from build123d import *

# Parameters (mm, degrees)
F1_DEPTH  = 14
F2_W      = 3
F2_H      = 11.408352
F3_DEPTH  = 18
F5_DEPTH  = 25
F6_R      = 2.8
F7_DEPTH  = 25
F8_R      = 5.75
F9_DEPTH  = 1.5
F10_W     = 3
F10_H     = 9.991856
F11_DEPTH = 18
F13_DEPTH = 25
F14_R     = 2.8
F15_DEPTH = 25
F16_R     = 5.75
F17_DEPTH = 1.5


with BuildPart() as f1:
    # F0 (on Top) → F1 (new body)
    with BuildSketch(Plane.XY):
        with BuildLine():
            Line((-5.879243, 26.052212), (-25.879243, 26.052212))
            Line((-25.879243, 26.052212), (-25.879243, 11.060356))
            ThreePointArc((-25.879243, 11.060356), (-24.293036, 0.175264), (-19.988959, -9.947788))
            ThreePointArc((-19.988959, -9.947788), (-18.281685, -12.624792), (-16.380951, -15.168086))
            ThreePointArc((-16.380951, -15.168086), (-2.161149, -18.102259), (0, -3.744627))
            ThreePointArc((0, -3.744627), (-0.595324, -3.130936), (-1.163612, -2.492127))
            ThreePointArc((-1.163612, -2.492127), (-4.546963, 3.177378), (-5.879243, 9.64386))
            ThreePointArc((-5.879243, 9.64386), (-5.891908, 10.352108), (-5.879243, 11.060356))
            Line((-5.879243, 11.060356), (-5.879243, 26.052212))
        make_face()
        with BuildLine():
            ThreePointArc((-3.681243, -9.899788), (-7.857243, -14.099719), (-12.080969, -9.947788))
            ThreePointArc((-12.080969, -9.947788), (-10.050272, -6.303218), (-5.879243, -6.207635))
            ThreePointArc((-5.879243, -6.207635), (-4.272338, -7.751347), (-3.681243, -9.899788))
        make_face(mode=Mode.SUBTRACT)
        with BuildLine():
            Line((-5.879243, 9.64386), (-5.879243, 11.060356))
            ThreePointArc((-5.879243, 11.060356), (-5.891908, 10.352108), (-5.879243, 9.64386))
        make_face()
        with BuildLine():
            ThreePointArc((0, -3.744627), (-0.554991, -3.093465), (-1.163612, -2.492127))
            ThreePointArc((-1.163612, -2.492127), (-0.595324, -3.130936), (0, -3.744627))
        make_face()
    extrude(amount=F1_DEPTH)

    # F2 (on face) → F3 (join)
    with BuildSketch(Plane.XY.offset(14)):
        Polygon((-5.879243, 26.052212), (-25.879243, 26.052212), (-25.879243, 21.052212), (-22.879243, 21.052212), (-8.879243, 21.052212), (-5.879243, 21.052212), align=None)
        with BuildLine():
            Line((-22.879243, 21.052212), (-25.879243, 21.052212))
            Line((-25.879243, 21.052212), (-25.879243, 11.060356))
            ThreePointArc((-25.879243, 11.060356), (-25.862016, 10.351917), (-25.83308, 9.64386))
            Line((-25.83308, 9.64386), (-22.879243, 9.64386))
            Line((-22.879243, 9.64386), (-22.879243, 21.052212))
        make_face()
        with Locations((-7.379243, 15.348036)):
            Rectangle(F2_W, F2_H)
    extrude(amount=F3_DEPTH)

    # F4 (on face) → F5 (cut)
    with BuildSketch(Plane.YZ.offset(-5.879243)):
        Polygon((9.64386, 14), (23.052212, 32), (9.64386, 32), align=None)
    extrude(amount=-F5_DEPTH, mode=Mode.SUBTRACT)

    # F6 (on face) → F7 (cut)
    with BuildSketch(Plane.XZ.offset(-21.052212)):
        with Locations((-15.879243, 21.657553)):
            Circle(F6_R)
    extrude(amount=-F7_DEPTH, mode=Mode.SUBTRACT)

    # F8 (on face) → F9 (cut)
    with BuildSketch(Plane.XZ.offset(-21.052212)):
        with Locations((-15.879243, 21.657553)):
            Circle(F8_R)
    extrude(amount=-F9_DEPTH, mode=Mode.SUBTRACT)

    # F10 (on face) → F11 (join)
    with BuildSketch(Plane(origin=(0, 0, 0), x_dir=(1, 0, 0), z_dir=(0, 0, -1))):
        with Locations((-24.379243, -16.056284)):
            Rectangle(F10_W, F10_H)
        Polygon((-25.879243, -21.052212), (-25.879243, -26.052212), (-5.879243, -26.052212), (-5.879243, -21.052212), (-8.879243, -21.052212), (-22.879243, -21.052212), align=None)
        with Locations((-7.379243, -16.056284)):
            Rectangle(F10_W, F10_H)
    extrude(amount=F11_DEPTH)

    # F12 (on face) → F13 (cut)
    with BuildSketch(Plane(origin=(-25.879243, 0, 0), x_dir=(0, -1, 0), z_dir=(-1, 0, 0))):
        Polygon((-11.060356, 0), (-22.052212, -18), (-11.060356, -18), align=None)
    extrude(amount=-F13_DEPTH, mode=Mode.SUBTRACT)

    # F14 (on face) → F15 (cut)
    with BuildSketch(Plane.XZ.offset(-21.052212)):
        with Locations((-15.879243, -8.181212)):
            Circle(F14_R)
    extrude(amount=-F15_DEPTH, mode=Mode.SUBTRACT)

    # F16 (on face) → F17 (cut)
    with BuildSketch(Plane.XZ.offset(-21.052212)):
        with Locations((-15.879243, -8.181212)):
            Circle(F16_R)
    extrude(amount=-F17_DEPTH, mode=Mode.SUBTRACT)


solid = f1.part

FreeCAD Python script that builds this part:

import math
import FreeCAD as App
import Part
import Sketcher


def add_polygon(sketch, points):
    """Adds a closed chain of lines whose ends are joined by coincident constraints."""
    first, n = sketch.GeometryCount, len(points)
    for a, b in zip(points, points[1:] + points[:1]):
        sketch.addGeometry(Part.LineSegment(App.Vector(*a, 0), App.Vector(*b, 0)), False)
    for i in range(n):
        sketch.addConstraint(Sketcher.Constraint("Coincident", first + i, 2, first + (i + 1) % n, 1))

doc = App.newDocument("Part")
params = doc.addObject("Spreadsheet::Sheet", "Params")
for row, (alias, value) in enumerate([
    ("sketch1_radius", "10 mm"),
    ("sketch1_radius2", "4.2 mm"),
    ("sketch1_radius3", "4.2 mm"),
    ("sketch1_width", "20 mm"),
    ("pad1_length", "14 mm"),
    ("sketch2_width", "20 mm"),
    ("sketch2_width2", "14 mm"),
    ("sketch2_width3", "3 mm"),
    ("pad2_length", "18 mm"),
    ("sketch3_height", "18 mm"),
    ("pocket1_length", "25 mm"),
    ("sketch4_diameter", "5.6 mm"),
    ("pocket2_length", "25 mm"),
    ("sketch5_diameter", "11.5 mm"),
    ("pocket3_length", "1.5 mm"),
    ("sketch6_width", "20 mm"),
    ("sketch6_width2", "3 mm"),
    ("pad3_length", "18 mm"),
    ("sketch7_height", "18 mm"),
    ("pocket4_length", "25 mm"),
    ("sketch8_diameter", "5.6 mm"),
    ("pocket5_length", "25 mm"),
    ("sketch9_diameter", "11.5 mm"),
    ("pocket6_length", "1.5 mm"),
], start=1):
    params.set(f"A{row}", alias)
    params.set(f"B{row}", "=" + value)
    params.setAlias(f"B{row}", alias)

body = doc.addObject("PartDesign::Body", "Body")

# Sketch on XY plane
sketch1 = body.newObject("Sketcher::SketchObject", "Sketch")
sketch1.AttachmentSupport = (doc.getObject("XY_Plane"), [""])
sketch1.MapMode = "FlatFace"
sketch1.addGeometry([
    Part.LineSegment(App.Vector(-5.879243, 26.052212, 0), App.Vector(-25.879243, 26.052212, 0)),  # 0
    Part.LineSegment(App.Vector(-25.879243, 26.052212, 0), App.Vector(-25.879243, 11.060356, 0)),  # 1
    Part.ArcOfCircle(Part.Circle(App.Vector(16.982751, 11.74821, 0), App.Vector(0, 0, 1), 42.867513), math.radians(-179.08059), math.radians(-149.594438)),  # 2
    Part.ArcOfCircle(Part.Circle(App.Vector(16.982617, 11.748124, 0), App.Vector(0, 0, 1), 42.867354), math.radians(-149.594447), math.radians(-141.104988)),  # 3
    Part.ArcOfCircle(Part.Circle(App.Vector(-7.881243, -9.899788, 0), App.Vector(0, 0, 1), 10), math.radians(-148.208495), math.radians(37.989433)),  # 4
    Part.ArcOfCircle(Part.Circle(App.Vector(-7.881263, -9.899803, 0), App.Vector(0, 0, 1), 10.000025), math.radians(37.989427), math.radians(47.796686)),  # 5
    Part.ArcOfCircle(Part.Circle(App.Vector(13.917665, 10.352104, 0), App.Vector(0, 0, 1), 19.809573), math.radians(-177.95109), math.radians(-139.58005)),  # 6
    Part.LineSegment(App.Vector(-5.879243, 9.64386, 0), App.Vector(-5.879243, 26.052212, 0)),  # 7
    Part.ArcOfCircle(Part.Circle(App.Vector(-7.881246, -9.89979, 0), App.Vector(0, 0, 1), 4.200003), math.radians(0.000032), math.radians(61.53205)),  # 8
    Part.ArcOfCircle(Part.Circle(App.Vector(-7.881243, -9.899787, 0), App.Vector(0, 0, 1), 4.2), math.radians(-179.345169), math.radians(-0.000008)),  # 9
    Part.ArcOfCircle(Part.Circle(App.Vector(-7.881244, -9.899788, 0), App.Vector(0, 0, 1), 4.2), math.radians(61.532067), math.radians(180.654828)),  # 10
], False)
sketch1.addConstraint([
    Sketcher.Constraint("Coincident", 0, 2, 1, 1),
    Sketcher.Constraint("Coincident", 1, 2, 2, 1),
    Sketcher.Constraint("Coincident", 2, 2, 3, 1),
    Sketcher.Constraint("Coincident", 3, 2, 4, 1),
    Sketcher.Constraint("Coincident", 4, 2, 5, 1),
    Sketcher.Constraint("Coincident", 5, 2, 6, 2),
    Sketcher.Constraint("Coincident", 6, 1, 7, 1),
    Sketcher.Constraint("Coincident", 7, 2, 0, 1),
    Sketcher.Constraint("Coincident", 8, 1, 9, 2),
    Sketcher.Constraint("Coincident", 9, 1, 10, 2),
    Sketcher.Constraint("Coincident", 10, 1, 8, 2),
    Sketcher.Constraint("Horizontal", 0),
    Sketcher.Constraint("Vertical", 1),
    Sketcher.Constraint("Vertical", 7),
    Sketcher.Constraint("Coincident", 8, 3, 4, 3),
    Sketcher.Constraint("Coincident", 9, 3, 4, 3),
    Sketcher.Constraint("PointOnObject", 4, 2, -2),
    Sketcher.Constraint("Radius", 4, 10.0),
    Sketcher.Constraint("Radius", 9, 4.2),
    Sketcher.Constraint("Radius", 10, 4.2),
    Sketcher.Constraint("DistanceX", 0, 2, 0, 1, 20.0),
    Sketcher.Constraint("Radius", 2, 42.867513),
    Sketcher.Constraint("Radius", 3, 42.867354),
    Sketcher.Constraint("Radius", 5, 10.000025),
    Sketcher.Constraint("Radius", 6, 19.809573),
    Sketcher.Constraint("DistanceY", 4, 3, 2, 3, 21.647998),
    Sketcher.Constraint("DistanceX", 0, 2, 9, 3, 17.998),
    Sketcher.Constraint("DistanceY", 9, 3, 0, 2, 35.951999),
    Sketcher.Constraint("DistanceY", 2, 2, 10, 3, 0.048),
    Sketcher.Constraint("DistanceY", 9, 1, 10, 3, 0.048),
    Sketcher.Constraint("DistanceX", 9, 3, 10, 1, 2.002),
    Sketcher.Constraint("DistanceY", 3, 2, 10, 3, 5.268298),
    Sketcher.Constraint("DistanceY", 4, 2, 5, 2, 1.2525),
    Sketcher.Constraint("DistanceY", 1, 2, 1, 1, 14.991856),
    Sketcher.Constraint("DistanceY", 7, 1, 7, 2, 16.408352),
    Sketcher.Constraint("DistanceX", -1, 1, 2, 3, 16.982751),
    Sketcher.Constraint("DistanceY", -1, 1, 2, 3, 11.74821),
    Sketcher.Constraint("DistanceX", 5, 2, -1, 1, 1.163612),
    Sketcher.Constraint("DistanceY", 8, 1, -1, 1, 9.899788),
])
sketch1.setExpression("Constraints[17]", "Params.sketch1_radius")
sketch1.setExpression("Constraints[18]", "Params.sketch1_radius2")
sketch1.setExpression("Constraints[19]", "Params.sketch1_radius3")
sketch1.setExpression("Constraints[20]", "Params.sketch1_width")
pad1 = body.newObject("PartDesign::Pad", "Pad")
pad1.Profile = sketch1
pad1.setExpression("Length", "Params.pad1_length")

# Sketch on XY plane
sketch2 = body.newObject("Sketcher::SketchObject", "Sketch001")
sketch2.AttachmentSupport = (doc.getObject("XY_Plane"), [""])
sketch2.MapMode = "FlatFace"
sketch2.AttachmentOffset = App.Placement(App.Vector(0, 0, 14), App.Rotation())
sketch2.addGeometry([
    Part.LineSegment(App.Vector(-5.879243, 26.052212, 0), App.Vector(-25.879243, 26.052212, 0)),  # 0
    Part.LineSegment(App.Vector(-25.879243, 26.052212, 0), App.Vector(-25.879243, 11.060356, 0)),  # 1
    Part.ArcOfCircle(Part.Circle(App.Vector(16.981005, 11.748153, 0), App.Vector(0, 0, 1), 42.865766), math.radians(-179.080629), math.radians(-177.186203)),  # 2
    Part.LineSegment(App.Vector(-25.83308, 9.64386, 0), App.Vector(-22.879243, 9.64386, 0)),  # 3
    Part.LineSegment(App.Vector(-22.879243, 9.64386, 0), App.Vector(-22.879243, 21.052212, 0)),  # 4
    Part.LineSegment(App.Vector(-22.879243, 21.052212, 0), App.Vector(-8.879243, 21.052212, 0)),  # 5
    Part.LineSegment(App.Vector(-8.879243, 21.052212, 0), App.Vector(-8.879243, 9.64386, 0)),  # 6
    Part.LineSegment(App.Vector(-8.879243, 9.64386, 0), App.Vector(-5.879243, 9.64386, 0)),  # 7
    Part.LineSegment(App.Vector(-5.879243, 9.64386, 0), App.Vector(-5.879243, 26.052212, 0)),  # 8
], False)
sketch2.addConstraint([
    Sketcher.Constraint("Coincident", 0, 2, 1, 1),
    Sketcher.Constraint("Coincident", 1, 2, 2, 1),
    Sketcher.Constraint("Coincident", 2, 2, 3, 1),
    Sketcher.Constraint("Coincident", 3, 2, 4, 1),
    Sketcher.Constraint("Coincident", 4, 2, 5, 1),
    Sketcher.Constraint("Coincident", 5, 2, 6, 1),
    Sketcher.Constraint("Coincident", 6, 2, 7, 1),
    Sketcher.Constraint("Coincident", 7, 2, 8, 1),
    Sketcher.Constraint("Coincident", 8, 2, 0, 1),
    Sketcher.Constraint("Horizontal", 0),
    Sketcher.Constraint("Vertical", 1),
    Sketcher.Constraint("Horizontal", 3),
    Sketcher.Constraint("Vertical", 4),
    Sketcher.Constraint("Horizontal", 5),
    Sketcher.Constraint("Vertical", 6),
    Sketcher.Constraint("Horizontal", 7),
    Sketcher.Constraint("Vertical", 8),
    Sketcher.Constraint("Horizontal", 3, 2, 6, 2),
    Sketcher.Constraint("DistanceX", 0, 2, 0, 1, 20.0),
    Sketcher.Constraint("DistanceX", 5, 1, 5, 2, 14.0),
    Sketcher.Constraint("DistanceX", 7, 1, 7, 2, 3.0),
    Sketcher.Constraint("DistanceY", 4, 2, 0, 2, 5.0),
    Sketcher.Constraint("Radius", 2, 42.865766),
    Sketcher.Constraint("DistanceX", 3, 1, 3, 2, 2.953837),
    Sketcher.Constraint("DistanceY", 1, 2, 1, 1, 14.991856),
    Sketcher.Constraint("DistanceY", 4, 1, 4, 2, 11.408352),
    Sketcher.Constraint("DistanceX", 2, 2, -1, 1, 25.83308),
    Sketcher.Constraint("DistanceY", -1, 1, 2, 2, 9.64386),
])
sketch2.setExpression("Constraints[18]", "Params.sketch2_width")
sketch2.setExpression("Constraints[19]", "Params.sketch2_width2")
sketch2.setExpression("Constraints[20]", "Params.sketch2_width3")
pad2 = body.newObject("PartDesign::Pad", "Pad001")
pad2.Profile = sketch2
pad2.setExpression("Length", "Params.pad2_length")

# Sketch on YZ plane
sketch3 = body.newObject("Sketcher::SketchObject", "Sketch002")
sketch3.AttachmentSupport = (doc.getObject("YZ_Plane"), [""])
sketch3.MapMode = "FlatFace"
sketch3.AttachmentOffset = App.Placement(App.Vector(0, 0, -5.879243), App.Rotation())
add_polygon(sketch3, [(9.64386, 14), (23.052212, 32), (9.64386, 32)])  # lines 0-2
sketch3.addConstraint([
    Sketcher.Constraint("Horizontal", 1),
    Sketcher.Constraint("Vertical", 2),
    Sketcher.Constraint("DistanceY", 2, 2, 2, 1, 18.0),
    Sketcher.Constraint("DistanceY", -1, 1, 0, 2, 32.0),
    Sketcher.Constraint("Distance", 0, 22.445131),
    Sketcher.Constraint("DistanceX", -1, 1, 1, 2, 9.64386),
])
sketch3.setExpression("Constraints[5]", "Params.sketch3_height")
pocket1 = body.newObject("PartDesign::Pocket", "Pocket")
pocket1.Profile = sketch3
pocket1.setExpression("Length", "Params.pocket1_length")

# Sketch on XZ plane
sketch4 = body.newObject("Sketcher::SketchObject", "Sketch003")
sketch4.AttachmentSupport = (doc.getObject("XZ_Plane"), [""])
sketch4.MapMode = "FlatFace"
sketch4.AttachmentOffset = App.Placement(App.Vector(0, 0, -21.052212), App.Rotation())
sketch4.addGeometry(Part.Circle(App.Vector(-15.879243, 21.657553, 0), App.Vector(0, 0, 1), 2.8), False)
sketch4.addConstraint([
    Sketcher.Constraint("Diameter", 0, 5.6),
    Sketcher.Constraint("DistanceX", 0, 3, -1, 1, 15.879243),
    Sketcher.Constraint("DistanceY", -1, 1, 0, 3, 21.657553),
])
sketch4.setExpression("Constraints[0]", "Params.sketch4_diameter")
pocket2 = body.newObject("PartDesign::Pocket", "Pocket001")
pocket2.Profile = sketch4
pocket2.setExpression("Length", "Params.pocket2_length")

# Sketch on XZ plane
sketch5 = body.newObject("Sketcher::SketchObject", "Sketch004")
sketch5.AttachmentSupport = (doc.getObject("XZ_Plane"), [""])
sketch5.MapMode = "FlatFace"
sketch5.AttachmentOffset = App.Placement(App.Vector(0, 0, -21.052212), App.Rotation())
sketch5.addGeometry(Part.Circle(App.Vector(-15.879243, 21.657553, 0), App.Vector(0, 0, 1), 5.75), False)
sketch5.addConstraint([
    Sketcher.Constraint("Diameter", 0, 11.5),
    Sketcher.Constraint("DistanceX", 0, 3, -1, 1, 15.879243),
    Sketcher.Constraint("DistanceY", -1, 1, 0, 3, 21.657553),
])
sketch5.setExpression("Constraints[0]", "Params.sketch5_diameter")
pocket3 = body.newObject("PartDesign::Pocket", "Pocket002")
pocket3.Profile = sketch5
pocket3.setExpression("Length", "Params.pocket3_length")

# Sketch on XY plane
sketch6 = body.newObject("Sketcher::SketchObject", "Sketch005")
sketch6.AttachmentSupport = (doc.getObject("XY_Plane"), [""])
sketch6.MapMode = "FlatFace"
add_polygon(sketch6, [(-25.879243, 11.060356), (-25.879243, 26.052212), (-5.879243, 26.052212), (-5.879243, 11.060356), (-8.879243, 11.060356), (-8.879243, 21.052212), (-22.879243, 21.052212), (-22.879243, 11.060356)])  # lines 0-7
sketch6.addConstraint([
    Sketcher.Constraint("Vertical", 0),
    Sketcher.Constraint("Horizontal", 1),
    Sketcher.Constraint("Vertical", 2),
    Sketcher.Constraint("Horizontal", 3),
    Sketcher.Constraint("Vertical", 4),
    Sketcher.Constraint("Horizontal", 5),
    Sketcher.Constraint("Vertical", 6),
    Sketcher.Constraint("Horizontal", 7),
    Sketcher.Constraint("Horizontal", 3, 2, 6, 2),
    Sketcher.Constraint("Equal", 3, 7),
    Sketcher.Constraint("DistanceX", 1, 1, 1, 2, 20.0),
    Sketcher.Constraint("DistanceX", 3, 2, 3, 1, 3.0),
    Sketcher.Constraint("DistanceY", 4, 2, 1, 2, 5.0),
    Sketcher.Constraint("DistanceY", 0, 1, 0, 2, 14.991856),
    Sketcher.Constraint("DistanceX", 0, 2, -1, 1, 25.879243),
    Sketcher.Constraint("DistanceY", -1, 1, 0, 2, 26.052212),
])
sketch6.setExpression("Constraints[18]", "Params.sketch6_width")
sketch6.setExpression("Constraints[19]", "Params.sketch6_width2")
pad3 = body.newObject("PartDesign::Pad", "Pad002")
pad3.Profile = sketch6
pad3.setExpression("Length", "Params.pad3_length")
pad3.Reversed = True

# Sketch on YZ plane
sketch7 = body.newObject("Sketcher::SketchObject", "Sketch006")
sketch7.AttachmentSupport = (doc.getObject("YZ_Plane"), [""])
sketch7.MapMode = "FlatFace"
sketch7.AttachmentOffset = App.Placement(App.Vector(0, 0, -25.879243), App.Rotation())
add_polygon(sketch7, [(11.060356, 0), (22.052212, -18), (11.060356, -18)])  # lines 0-2
sketch7.addConstraint([
    Sketcher.Constraint("Horizontal", 1),
    Sketcher.Constraint("Vertical", 2),
    Sketcher.Constraint("PointOnObject", 2, 2, -1),
    Sketcher.Constraint("DistanceY", 2, 1, 2, 2, 18.0),
    Sketcher.Constraint("DistanceX", 1, 2, 1, 1, 10.991856),
    Sketcher.Constraint("DistanceX", -1, 1, 0, 2, 22.052212),
])
sketch7.setExpression("Constraints[6]", "Params.sketch7_height")
pocket4 = body.newObject("PartDesign::Pocket", "Pocket003")
pocket4.Profile = sketch7
pocket4.setExpression("Length", "Params.pocket4_length")
pocket4.Reversed = True

# Sketch on XZ plane
sketch8 = body.newObject("Sketcher::SketchObject", "Sketch007")
sketch8.AttachmentSupport = (doc.getObject("XZ_Plane"), [""])
sketch8.MapMode = "FlatFace"
sketch8.AttachmentOffset = App.Placement(App.Vector(0, 0, -21.052212), App.Rotation())
sketch8.addGeometry(Part.Circle(App.Vector(-15.879243, -8.181212, 0), App.Vector(0, 0, 1), 2.8), False)
sketch8.addConstraint([
    Sketcher.Constraint("Diameter", 0, 5.6),
    Sketcher.Constraint("DistanceX", 0, 3, -1, 1, 15.879243),
    Sketcher.Constraint("DistanceY", 0, 3, -1, 1, 8.181212),
])
sketch8.setExpression("Constraints[0]", "Params.sketch8_diameter")
pocket5 = body.newObject("PartDesign::Pocket", "Pocket004")
pocket5.Profile = sketch8
pocket5.setExpression("Length", "Params.pocket5_length")

# Sketch on XZ plane
sketch9 = body.newObject("Sketcher::SketchObject", "Sketch008")
sketch9.AttachmentSupport = (doc.getObject("XZ_Plane"), [""])
sketch9.MapMode = "FlatFace"
sketch9.AttachmentOffset = App.Placement(App.Vector(0, 0, -21.052212), App.Rotation())
sketch9.addGeometry(Part.Circle(App.Vector(-15.879243, -8.181212, 0), App.Vector(0, 0, 1), 5.75), False)
sketch9.addConstraint([
    Sketcher.Constraint("Diameter", 0, 11.5),
    Sketcher.Constraint("DistanceX", 0, 3, -1, 1, 15.879243),
    Sketcher.Constraint("DistanceY", 0, 3, -1, 1, 8.181212),
])
sketch9.setExpression("Constraints[0]", "Params.sketch9_diameter")
pocket6 = body.newObject("PartDesign::Pocket", "Pocket005")
pocket6.Profile = sketch9
pocket6.setExpression("Length", "Params.pocket6_length")

doc.recompute()
